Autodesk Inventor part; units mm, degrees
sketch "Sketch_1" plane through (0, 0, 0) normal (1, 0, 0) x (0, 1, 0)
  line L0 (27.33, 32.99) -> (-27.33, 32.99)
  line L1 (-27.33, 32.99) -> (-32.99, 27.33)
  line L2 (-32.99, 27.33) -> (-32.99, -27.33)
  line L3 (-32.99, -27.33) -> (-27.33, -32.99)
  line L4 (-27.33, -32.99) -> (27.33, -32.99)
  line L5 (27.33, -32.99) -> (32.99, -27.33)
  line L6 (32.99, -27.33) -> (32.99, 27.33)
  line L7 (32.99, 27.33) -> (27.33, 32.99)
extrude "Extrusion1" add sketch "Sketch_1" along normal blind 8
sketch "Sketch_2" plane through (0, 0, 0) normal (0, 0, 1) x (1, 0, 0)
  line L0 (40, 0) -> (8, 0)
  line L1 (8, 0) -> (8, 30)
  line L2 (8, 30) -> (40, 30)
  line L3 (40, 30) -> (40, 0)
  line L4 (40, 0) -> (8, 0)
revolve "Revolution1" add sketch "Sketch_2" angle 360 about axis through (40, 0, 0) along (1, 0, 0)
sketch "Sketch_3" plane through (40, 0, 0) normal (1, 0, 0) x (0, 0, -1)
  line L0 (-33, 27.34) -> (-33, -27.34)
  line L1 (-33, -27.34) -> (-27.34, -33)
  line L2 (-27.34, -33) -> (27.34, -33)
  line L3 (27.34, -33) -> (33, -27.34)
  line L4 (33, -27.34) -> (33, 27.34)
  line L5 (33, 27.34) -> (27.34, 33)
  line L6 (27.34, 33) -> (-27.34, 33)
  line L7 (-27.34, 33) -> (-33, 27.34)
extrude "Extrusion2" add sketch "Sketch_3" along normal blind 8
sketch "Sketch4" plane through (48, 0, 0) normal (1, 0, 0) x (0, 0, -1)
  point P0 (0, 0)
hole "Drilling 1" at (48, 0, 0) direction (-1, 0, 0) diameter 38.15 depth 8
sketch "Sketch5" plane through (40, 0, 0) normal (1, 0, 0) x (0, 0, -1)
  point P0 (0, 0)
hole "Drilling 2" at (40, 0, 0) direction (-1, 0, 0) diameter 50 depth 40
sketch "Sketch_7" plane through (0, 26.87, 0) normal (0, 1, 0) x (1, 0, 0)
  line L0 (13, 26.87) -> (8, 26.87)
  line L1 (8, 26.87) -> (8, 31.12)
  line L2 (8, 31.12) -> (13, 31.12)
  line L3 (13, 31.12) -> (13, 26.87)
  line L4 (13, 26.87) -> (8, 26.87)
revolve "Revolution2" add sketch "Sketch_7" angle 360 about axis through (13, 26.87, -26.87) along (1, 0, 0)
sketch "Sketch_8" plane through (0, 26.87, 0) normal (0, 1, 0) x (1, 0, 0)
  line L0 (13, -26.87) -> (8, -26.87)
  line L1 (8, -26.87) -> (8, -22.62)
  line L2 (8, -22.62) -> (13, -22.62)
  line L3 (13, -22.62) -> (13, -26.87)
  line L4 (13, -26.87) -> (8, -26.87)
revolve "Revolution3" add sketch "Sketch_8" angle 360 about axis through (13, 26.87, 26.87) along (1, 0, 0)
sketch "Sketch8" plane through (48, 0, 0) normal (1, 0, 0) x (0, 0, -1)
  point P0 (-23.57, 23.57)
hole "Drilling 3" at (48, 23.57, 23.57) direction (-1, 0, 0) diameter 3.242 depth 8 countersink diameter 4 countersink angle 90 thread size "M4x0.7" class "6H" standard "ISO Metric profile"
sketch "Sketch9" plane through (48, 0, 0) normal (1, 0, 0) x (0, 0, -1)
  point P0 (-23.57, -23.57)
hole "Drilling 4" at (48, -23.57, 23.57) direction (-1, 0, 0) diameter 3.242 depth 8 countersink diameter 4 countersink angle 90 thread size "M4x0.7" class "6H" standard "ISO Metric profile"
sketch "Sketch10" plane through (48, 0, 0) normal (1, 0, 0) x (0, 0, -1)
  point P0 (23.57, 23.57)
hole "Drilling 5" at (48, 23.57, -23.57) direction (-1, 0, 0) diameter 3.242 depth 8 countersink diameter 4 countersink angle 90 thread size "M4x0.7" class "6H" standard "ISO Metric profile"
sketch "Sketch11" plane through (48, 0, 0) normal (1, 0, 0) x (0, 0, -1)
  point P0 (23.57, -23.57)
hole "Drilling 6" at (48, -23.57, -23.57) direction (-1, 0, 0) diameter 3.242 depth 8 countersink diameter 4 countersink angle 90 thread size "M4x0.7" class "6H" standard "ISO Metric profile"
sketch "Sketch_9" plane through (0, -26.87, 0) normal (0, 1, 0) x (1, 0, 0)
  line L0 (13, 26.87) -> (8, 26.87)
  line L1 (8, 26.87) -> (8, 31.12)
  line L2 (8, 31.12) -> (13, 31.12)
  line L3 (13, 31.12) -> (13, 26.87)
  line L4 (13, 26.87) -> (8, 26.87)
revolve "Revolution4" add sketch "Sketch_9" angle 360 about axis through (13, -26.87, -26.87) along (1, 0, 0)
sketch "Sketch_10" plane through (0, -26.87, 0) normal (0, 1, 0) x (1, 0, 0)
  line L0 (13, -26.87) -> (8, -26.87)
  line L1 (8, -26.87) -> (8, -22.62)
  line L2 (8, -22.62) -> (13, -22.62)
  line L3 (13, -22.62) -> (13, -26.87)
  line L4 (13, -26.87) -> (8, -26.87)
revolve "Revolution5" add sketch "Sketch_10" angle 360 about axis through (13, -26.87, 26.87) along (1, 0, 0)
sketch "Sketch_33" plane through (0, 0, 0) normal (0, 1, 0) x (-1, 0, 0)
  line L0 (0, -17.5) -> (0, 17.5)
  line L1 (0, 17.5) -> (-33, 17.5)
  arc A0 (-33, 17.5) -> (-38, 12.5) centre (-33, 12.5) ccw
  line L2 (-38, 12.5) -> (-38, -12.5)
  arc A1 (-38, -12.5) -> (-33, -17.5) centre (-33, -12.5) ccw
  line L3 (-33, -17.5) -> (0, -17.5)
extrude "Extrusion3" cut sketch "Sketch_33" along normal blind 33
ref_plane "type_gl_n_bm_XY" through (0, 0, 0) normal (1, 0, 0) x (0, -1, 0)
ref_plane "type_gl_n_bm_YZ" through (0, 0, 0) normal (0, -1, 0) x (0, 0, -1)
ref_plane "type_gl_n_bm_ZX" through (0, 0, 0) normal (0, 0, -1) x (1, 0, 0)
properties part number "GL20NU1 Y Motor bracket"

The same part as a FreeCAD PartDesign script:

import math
import FreeCAD as App
import Part
import Sketcher

V = App.Vector

doc = App.newDocument("Part")
body = doc.addObject("PartDesign::Body", "Body")

# Sketch on YZ plane
sketch1 = body.newObject("Sketcher::SketchObject", "Sketch")
sketch1.AttachmentSupport = (doc.getObject("YZ_Plane"), [""])
sketch1.MapMode = "FlatFace"
sketch1.addGeometry(Part.LineSegment(V(33, 27, 0), V(27, 33, 0)), False)
sketch1.addGeometry(Part.LineSegment(V(27, 33, 0), V(-27, 33, 0)), False)
sketch1.addGeometry(Part.LineSegment(V(-27, 33, 0), V(-33, 27, 0)), False)
sketch1.addGeometry(Part.LineSegment(V(-33, 27, 0), V(-33, -27, 0)), False)
sketch1.addGeometry(Part.LineSegment(V(-33, -27, 0), V(-27, -33, 0)), False)
sketch1.addGeometry(Part.LineSegment(V(-27, -33, 0), V(27, -33, 0)), False)
sketch1.addGeometry(Part.LineSegment(V(27, -33, 0), V(33, -27, 0)), False)
sketch1.addGeometry(Part.LineSegment(V(33, -27, 0), V(33, 27, 0)), False)
sketch1.addConstraint(Sketcher.Constraint("Coincident", 0, 2, 1, 1))
sketch1.addConstraint(Sketcher.Constraint("Coincident", 1, 2, 2, 1))
sketch1.addConstraint(Sketcher.Constraint("Coincident", 2, 2, 3, 1))
sketch1.addConstraint(Sketcher.Constraint("Coincident", 3, 2, 4, 1))
sketch1.addConstraint(Sketcher.Constraint("Coincident", 4, 2, 5, 1))
sketch1.addConstraint(Sketcher.Constraint("Coincident", 5, 2, 6, 1))
sketch1.addConstraint(Sketcher.Constraint("Coincident", 6, 2, 7, 1))
sketch1.addConstraint(Sketcher.Constraint("Coincident", 7, 2, 0, 1))
sketch1.addConstraint(Sketcher.Constraint("Horizontal", 1))
sketch1.addConstraint(Sketcher.Constraint("Vertical", 3))
sketch1.addConstraint(Sketcher.Constraint("Horizontal", 5))
sketch1.addConstraint(Sketcher.Constraint("Vertical", 7))
sketch1.addConstraint(Sketcher.Constraint("Symmetric", 0, 2, 4, 2, -1, 1))
sketch1.addConstraint(Sketcher.Constraint("Symmetric", 2, 2, 6, 2, -1, 1))
sketch1.addConstraint(Sketcher.Constraint("Perpendicular", 0, 2))
sketch1.addConstraint(Sketcher.Constraint("Perpendicular", 2, 4))
sketch1.addConstraint(Sketcher.Constraint("Perpendicular", 4, 6))
sketch1.addConstraint(Sketcher.Constraint("Horizontal", 3, 2, 6, 2))
sketch1.addConstraint(Sketcher.Constraint("Vertical", 1, 2, 4, 2))
sketch1.addConstraint(Sketcher.Constraint("Equal", 5, 3))
sketch1.addConstraint(Sketcher.Constraint("DistanceX", 1, 2, 1, 1, 54.66))
sketch1.addConstraint(Sketcher.Constraint("DistanceY", -1, 1, 0, 2, 32.99))
pad1 = body.newObject("PartDesign::Pad", "Pad")
pad1.Profile = sketch1
pad1.Length = 8

# Sketch on XY plane
sketch2 = body.newObject("Sketcher::SketchObject", "Sketch001")
sketch2.AttachmentSupport = (doc.getObject("XY_Plane"), [""])
sketch2.MapMode = "FlatFace"
sketch2.addGeometry(Part.LineSegment(V(8, 0, 0), V(40, 0, 0)), False)
sketch2.addGeometry(Part.LineSegment(V(40, 0, 0), V(40, 30, 0)), False)
sketch2.addGeometry(Part.LineSegment(V(40, 30, 0), V(8, 30, 0)), False)
sketch2.addGeometry(Part.LineSegment(V(8, 30, 0), V(8, 0, 0)), False)
sketch2.addConstraint(Sketcher.Constraint("Coincident", 0, 2, 1, 1))
sketch2.addConstraint(Sketcher.Constraint("Coincident", 1, 2, 2, 1))
sketch2.addConstraint(Sketcher.Constraint("Coincident", 2, 2, 3, 1))
sketch2.addConstraint(Sketcher.Constraint("Coincident", 3, 2, 0, 1))
sketch2.addConstraint(Sketcher.Constraint("Horizontal", 0))
sketch2.addConstraint(Sketcher.Constraint("Vertical", 1))
sketch2.addConstraint(Sketcher.Constraint("Horizontal", 2))
sketch2.addConstraint(Sketcher.Constraint("Vertical", 3))
sketch2.addConstraint(Sketcher.Constraint("PointOnObject", 0, 2, -1))
sketch2.addConstraint(Sketcher.Constraint("DistanceX", 0, 1, 0, 2, 32.0))
sketch2.addConstraint(Sketcher.Constraint("DistanceY", 1, 1, 1, 2, 30.0))
sketch2.addConstraint(Sketcher.Constraint("DistanceX", -1, 1, 0, 2, 40.0))
revolution = body.newObject("PartDesign::Revolution", "Revolution")
revolution.Profile = sketch2
revolution.ReferenceAxis = (sketch2, ["H_Axis"])
revolution.Angle = 360

# Sketch on YZ plane
sketch3 = body.newObject("Sketcher::SketchObject", "Sketch002")
sketch3.AttachmentSupport = (doc.getObject("YZ_Plane"), [""])
sketch3.MapMode = "FlatFace"
sketch3.AttachmentOffset = App.Placement(V(0, 0, 40), App.Rotation())
sketch3.addGeometry(Part.LineSegment(V(33, 27, 0), V(27, 33, 0)), False)
sketch3.addGeometry(Part.LineSegment(V(27, 33, 0), V(-27, 33, 0)), False)
sketch3.addGeometry(Part.LineSegment(V(-27, 33, 0), V(-33, 27, 0)), False)
sketch3.addGeometry(Part.LineSegment(V(-33, 27, 0), V(-33, -27, 0)), False)
sketch3.addGeometry(Part.LineSegment(V(-33, -27, 0), V(-27, -33, 0)), False)
sketch3.addGeometry(Part.LineSegment(V(-27, -33, 0), V(27, -33, 0)), False)
sketch3.addGeometry(Part.LineSegment(V(27, -33, 0), V(33, -27, 0)), False)
sketch3.addGeometry(Part.LineSegment(V(33, -27, 0), V(33, 27, 0)), False)
sketch3.addConstraint(Sketcher.Constraint("Coincident", 0, 2, 1, 1))
sketch3.addConstraint(Sketcher.Constraint("Coincident", 1, 2, 2, 1))
sketch3.addConstraint(Sketcher.Constraint("Coincident", 2, 2, 3, 1))
sketch3.addConstraint(Sketcher.Constraint("Coincident", 3, 2, 4, 1))
sketch3.addConstraint(Sketcher.Constraint("Coincident", 4, 2, 5, 1))
sketch3.addConstraint(Sketcher.Constraint("Coincident", 5, 2, 6, 1))
sketch3.addConstraint(Sketcher.Constraint("Coincident", 6, 2, 7, 1))
sketch3.addConstraint(Sketcher.Constraint("Coincident", 7, 2, 0, 1))
sketch3.addConstraint(Sketcher.Constraint("Horizontal", 1))
sketch3.addConstraint(Sketcher.Constraint("Vertical", 3))
sketch3.addConstraint(Sketcher.Constraint("Horizontal", 5))
sketch3.addConstraint(Sketcher.Constraint("Vertical", 7))
sketch3.addConstraint(Sketcher.Constraint("Symmetric", 0, 2, 4, 2, -1, 1))
sketch3.addConstraint(Sketcher.Constraint("Symmetric", 2, 2, 6, 2, -1, 1))
sketch3.addConstraint(Sketcher.Constraint("Perpendicular", 0, 2))
sketch3.addConstraint(Sketcher.Constraint("Perpendicular", 2, 4))
sketch3.addConstraint(Sketcher.Constraint("Perpendicular", 4, 6))
sketch3.addConstraint(Sketcher.Constraint("Horizontal", 3, 2, 6, 2))
sketch3.addConstraint(Sketcher.Constraint("Vertical", 1, 2, 4, 2))
sketch3.addConstraint(Sketcher.Constraint("Equal", 5, 3))
sketch3.addConstraint(Sketcher.Constraint("DistanceY", -1, 1, 0, 2, 33.0))
sketch3.addConstraint(Sketcher.Constraint("DistanceX", 1, 2, 1, 1, 54.68))
pad2 = body.newObject("PartDesign::Pad", "Pad001")
pad2.Profile = sketch3
pad2.Length = 8

# Sketch on YZ plane
sketch4 = body.newObject("Sketcher::SketchObject", "Sketch003")
sketch4.AttachmentSupport = (doc.getObject("YZ_Plane"), [""])
sketch4.MapMode = "FlatFace"
sketch4.AttachmentOffset = App.Placement(V(0, 0, 48), App.Rotation())
sketch4.addGeometry(Part.Circle(V(0, 0, 0), V(0, 0, 1), 19), False)
sketch4.addConstraint(Sketcher.Constraint("Coincident", 0, 3, -1, 1))
sketch4.addConstraint(Sketcher.Constraint("Diameter", 0, 38.15))
doc.recompute()
hole = body.newObject("PartDesign::Hole", "Hole")
hole.Profile = sketch4
hole.ThreadType = "None"
hole.Diameter = 38.15
hole.DepthType = "Dimension"
hole.Depth = 8
hole.DrillPoint = "Flat"

# Sketch on YZ plane
sketch5 = body.newObject("Sketcher::SketchObject", "Sketch004")
sketch5.AttachmentSupport = (doc.getObject("YZ_Plane"), [""])
sketch5.MapMode = "FlatFace"
sketch5.AttachmentOffset = App.Placement(V(0, 0, 40), App.Rotation())
sketch5.addGeometry(Part.Circle(V(0, 0, 0), V(0, 0, 1), 25), False)
sketch5.addConstraint(Sketcher.Constraint("Coincident", 0, 3, -1, 1))
sketch5.addConstraint(Sketcher.Constraint("Diameter", 0, 50.0))
doc.recompute()
hole2 = body.newObject("PartDesign::Hole", "Hole001")
hole2.Profile = sketch5
hole2.ThreadType = "None"
hole2.Diameter = 50
hole2.DepthType = "Dimension"
hole2.Depth = 40
hole2.DrillPoint = "Flat"

# Sketch on XZ plane
sketch6 = body.newObject("Sketcher::SketchObject", "Sketch005")
sketch6.AttachmentSupport = (doc.getObject("XZ_Plane"), [""])
sketch6.MapMode = "FlatFace"
sketch6.AttachmentOffset = App.Placement(V(0, 0, -26.87), App.Rotation())
sketch6.addGeometry(Part.LineSegment(V(8, -26.9, 0), V(13, -26.9, 0)), False)
sketch6.addGeometry(Part.LineSegment(V(13, -26.9, 0), V(13, -31.1, 0)), False)
sketch6.addGeometry(Part.LineSegment(V(13, -31.1, 0), V(8, -31.1, 0)), False)
sketch6.addGeometry(Part.LineSegment(V(8, -31.1, 0), V(8, -26.9, 0)), False)
sketch6.addGeometry(Part.LineSegment(V(8, -26.9, 0), V(13, -26.9, 0)), True)  # axis
sketch6.addConstraint(Sketcher.Constraint("Coincident", 0, 2, 1, 1))
sketch6.addConstraint(Sketcher.Constraint("Coincident", 1, 2, 2, 1))
sketch6.addConstraint(Sketcher.Constraint("Coincident", 2, 2, 3, 1))
sketch6.addConstraint(Sketcher.Constraint("Coincident", 3, 2, 0, 1))
sketch6.addConstraint(Sketcher.Constraint("Horizontal", 0))
sketch6.addConstraint(Sketcher.Constraint("Vertical", 1))
sketch6.addConstraint(Sketcher.Constraint("Horizontal", 2))
sketch6.addConstraint(Sketcher.Constraint("Vertical", 3))
sketch6.addConstraint(Sketcher.Constraint("Horizontal", 4))
sketch6.addConstraint(Sketcher.Constraint("Coincident", 4, 1, 3, 2))
sketch6.addConstraint(Sketcher.Constraint("Vertical", 1, 2, 4, 2))
sketch6.addConstraint(Sketcher.Constraint("DistanceX", 0, 1, 0, 2, 5.0))
sketch6.addConstraint(Sketcher.Constraint("DistanceX", -1, 1, 0, 2, 13.0))
sketch6.addConstraint(Sketcher.Constraint("DistanceY", 1, 2, 1, 1, 4.25))
sketch6.addConstraint(Sketcher.Constraint("DistanceY", 0, 2, -1, 1, 26.87))
revolution2 = body.newObject("PartDesign::Revolution", "Revolution001")
revolution2.Profile = sketch6
revolution2.ReferenceAxis = (sketch6, ["Axis0"])
revolution2.Angle = 360

# Sketch on XZ plane
sketch7 = body.newObject("Sketcher::SketchObject", "Sketch006")
sketch7.AttachmentSupport = (doc.getObject("XZ_Plane"), [""])
sketch7.MapMode = "FlatFace"
sketch7.AttachmentOffset = App.Placement(V(0, 0, -26.87), App.Rotation())
sketch7.addGeometry(Part.LineSegment(V(8, 26.9, 0), V(13, 26.9, 0)), False)
sketch7.addGeometry(Part.LineSegment(V(13, 26.9, 0), V(13, 22.6, 0)), False)
sketch7.addGeometry(Part.LineSegment(V(13, 22.6, 0), V(8, 22.6, 0)), False)
sketch7.addGeometry(Part.LineSegment(V(8, 22.6, 0), V(8, 26.9, 0)), False)
sketch7.addGeometry(Part.LineSegment(V(8, 26.9, 0), V(13, 26.9, 0)), True)  # axis
sketch7.addConstraint(Sketcher.Constraint("Coincident", 0, 2, 1, 1))
sketch7.addConstraint(Sketcher.Constraint("Coincident", 1, 2, 2, 1))
sketch7.addConstraint(Sketcher.Constraint("Coincident", 2, 2, 3, 1))
sketch7.addConstraint(Sketcher.Constraint("Coincident", 3, 2, 0, 1))
sketch7.addConstraint(Sketcher.Constraint("Horizontal", 0))
sketch7.addConstraint(Sketcher.Constraint("Vertical", 1))
sketch7.addConstraint(Sketcher.Constraint("Horizontal", 2))
sketch7.addConstraint(Sketcher.Constraint("Vertical", 3))
sketch7.addConstraint(Sketcher.Constraint("Horizontal", 4))
sketch7.addConstraint(Sketcher.Constraint("Coincident", 4, 1, 3, 2))
sketch7.addConstraint(Sketcher.Constraint("Vertical", 1, 2, 4, 2))
sketch7.addConstraint(Sketcher.Constraint("DistanceX", 0, 1, 0, 2, 5.0))
sketch7.addConstraint(Sketcher.Constraint("DistanceX", -1, 1, 0, 2, 13.0))
sketch7.addConstraint(Sketcher.Constraint("DistanceY", 1, 2, 1, 1, 4.25))
sketch7.addConstraint(Sketcher.Constraint("DistanceY", -1, 1, 0, 2, 26.87))
revolution3 = body.newObject("PartDesign::Revolution", "Revolution002")
revolution3.Profile = sketch7
revolution3.ReferenceAxis = (sketch7, ["Axis0"])
revolution3.Angle = 360

# Sketch on YZ plane
sketch8 = body.newObject("Sketcher::SketchObject", "Sketch007")
sketch8.AttachmentSupport = (doc.getObject("YZ_Plane"), [""])
sketch8.MapMode = "FlatFace"
sketch8.AttachmentOffset = App.Placement(V(0, 0, 48), App.Rotation())
sketch8.addGeometry(Part.Circle(V(23.6, 23.6, 0), V(0, 0, 1), 1.6), False)
sketch8.addConstraint(Sketcher.Constraint("Diameter", 0, 3.242))
sketch8.addConstraint(Sketcher.Constraint("DistanceX", -1, 1, 0, 3, 23.57))
sketch8.addConstraint(Sketcher.Constraint("DistanceY", -1, 1, 0, 3, 23.57))
doc.recompute()
hole3 = body.newObject("PartDesign::Hole", "Hole002")
hole3.Profile = sketch8
hole3.ThreadType = "None"
hole3.Diameter = 3.242
hole3.DepthType = "Dimension"
hole3.Depth = 8
hole3.DrillPoint = "Flat"
hole3.HoleCutType = "Countersink"
hole3.HoleCutDiameter = 4
hole3.HoleCutCountersinkAngle = 90

# Sketch on YZ plane
sketch9 = body.newObject("Sketcher::SketchObject", "Sketch008")
sketch9.AttachmentSupport = (doc.getObject("YZ_Plane"), [""])
sketch9.MapMode = "FlatFace"
sketch9.AttachmentOffset = App.Placement(V(0, 0, 48), App.Rotation())
sketch9.addGeometry(Part.Circle(V(-23.6, 23.6, 0), V(0, 0, 1), 1.6), False)
sketch9.addConstraint(Sketcher.Constraint("Diameter", 0, 3.242))
sketch9.addConstraint(Sketcher.Constraint("DistanceX", 0, 3, -1, 1, 23.57))
sketch9.addConstraint(Sketcher.Constraint("DistanceY", -1, 1, 0, 3, 23.57))
doc.recompute()
hole4 = body.newObject("PartDesign::Hole", "Hole003")
hole4.Profile = sketch9
hole4.ThreadType = "None"
hole4.Diameter = 3.242
hole4.DepthType = "Dimension"
hole4.Depth = 8
hole4.DrillPoint = "Flat"
hole4.HoleCutType = "Countersink"
hole4.HoleCutDiameter = 4
hole4.HoleCutCountersinkAngle = 90

# Sketch on YZ plane
sketch10 = body.newObject("Sketcher::SketchObject", "Sketch009")
sketch10.AttachmentSupport = (doc.getObject("YZ_Plane"), [""])
sketch10.MapMode = "FlatFace"
sketch10.AttachmentOffset = App.Placement(V(0, 0, 48), App.Rotation())
sketch10.addGeometry(Part.Circle(V(23.6, -23.6, 0), V(0, 0, 1), 1.6), False)
sketch10.addConstraint(Sketcher.Constraint("Diameter", 0, 3.242))
sketch10.addConstraint(Sketcher.Constraint("DistanceX", -1, 1, 0, 3, 23.57))
sketch10.addConstraint(Sketcher.Constraint("DistanceY", 0, 3, -1, 1, 23.57))
doc.recompute()
hole5 = body.newObject("PartDesign::Hole", "Hole004")
hole5.Profile = sketch10
hole5.ThreadType = "None"
hole5.Diameter = 3.242
hole5.DepthType = "Dimension"
hole5.Depth = 8
hole5.DrillPoint = "Flat"
hole5.HoleCutType = "Countersink"
hole5.HoleCutDiameter = 4
hole5.HoleCutCountersinkAngle = 90

# Sketch on YZ plane
sketch11 = body.newObject("Sketcher::SketchObject", "Sketch010")
sketch11.AttachmentSupport = (doc.getObject("YZ_Plane"), [""])
sketch11.MapMode = "FlatFace"
sketch11.AttachmentOffset = App.Placement(V(0, 0, 48), App.Rotation())
sketch11.addGeometry(Part.Circle(V(-23.6, -23.6, 0), V(0, 0, 1), 1.6), False)
sketch11.addConstraint(Sketcher.Constraint("Diameter", 0, 3.242))
sketch11.addConstraint(Sketcher.Constraint("DistanceX", 0, 3, -1, 1, 23.57))
sketch11.addConstraint(Sketcher.Constraint("DistanceY", 0, 3, -1, 1, 23.57))
doc.recompute()
hole6 = body.newObject("PartDesign::Hole", "Hole005")
hole6.Profile = sketch11
hole6.ThreadType = "None"
hole6.Diameter = 3.242
hole6.DepthType = "Dimension"
hole6.Depth = 8
hole6.DrillPoint = "Flat"
hole6.HoleCutType = "Countersink"
hole6.HoleCutDiameter = 4
hole6.HoleCutCountersinkAngle = 90

# Sketch on XZ plane
sketch12 = body.newObject("Sketcher::SketchObject", "Sketch011")
sketch12.AttachmentSupport = (doc.getObject("XZ_Plane"), [""])
sketch12.MapMode = "FlatFace"
sketch12.AttachmentOffset = App.Placement(V(0, 0, 26.87), App.Rotation())
sketch12.addGeometry(Part.LineSegment(V(8, -26.9, 0), V(13, -26.9, 0)), False)
sketch12.addGeometry(Part.LineSegment(V(13, -26.9, 0), V(13, -31.1, 0)), False)
sketch12.addGeometry(Part.LineSegment(V(13, -31.1, 0), V(8, -31.1, 0)), False)
sketch12.addGeometry(Part.LineSegment(V(8, -31.1, 0), V(8, -26.9, 0)), False)
sketch12.addGeometry(Part.LineSegment(V(8, -26.9, 0), V(13, -26.9, 0)), True)  # axis
sketch12.addConstraint(Sketcher.Constraint("Coincident", 0, 2, 1, 1))
sketch12.addConstraint(Sketcher.Constraint("Coincident", 1, 2, 2, 1))
sketch12.addConstraint(Sketcher.Constraint("Coincident", 2, 2, 3, 1))
sketch12.addConstraint(Sketcher.Constraint("Coincident", 3, 2, 0, 1))
sketch12.addConstraint(Sketcher.Constraint("Horizontal", 0))
sketch12.addConstraint(Sketcher.Constraint("Vertical", 1))
sketch12.addConstraint(Sketcher.Constraint("Horizontal", 2))
sketch12.addConstraint(Sketcher.Constraint("Vertical", 3))
sketch12.addConstraint(Sketcher.Constraint("Horizontal", 4))
sketch12.addConstraint(Sketcher.Constraint("Coincident", 4, 1, 3, 2))
sketch12.addConstraint(Sketcher.Constraint("Vertical", 1, 2, 4, 2))
sketch12.addConstraint(Sketcher.Constraint("DistanceX", 0, 1, 0, 2, 5.0))
sketch12.addConstraint(Sketcher.Constraint("DistanceX", -1, 1, 0, 2, 13.0))
sketch12.addConstraint(Sketcher.Constraint("DistanceY", 1, 2, 1, 1, 4.25))
sketch12.addConstraint(Sketcher.Constraint("DistanceY", 0, 2, -1, 1, 26.87))
revolution4 = body.newObject("PartDesign::Revolution", "Revolution003")
revolution4.Profile = sketch12
revolution4.ReferenceAxis = (sketch12, ["Axis0"])
revolution4.Angle = 360

# Sketch on XZ plane
sketch13 = body.newObject("Sketcher::SketchObject", "Sketch012")
sketch13.AttachmentSupport = (doc.getObject("XZ_Plane"), [""])
sketch13.MapMode = "FlatFace"
sketch13.AttachmentOffset = App.Placement(V(0, 0, 26.87), App.Rotation())
sketch13.addGeometry(Part.LineSegment(V(8, 26.9, 0), V(13, 26.9, 0)), False)
sketch13.addGeometry(Part.LineSegment(V(13, 26.9, 0), V(13, 22.6, 0)), False)
sketch13.addGeometry(Part.LineSegment(V(13, 22.6, 0), V(8, 22.6, 0)), False)
sketch13.addGeometry(Part.LineSegment(V(8, 22.6, 0), V(8, 26.9, 0)), False)
sketch13.addGeometry(Part.LineSegment(V(8, 26.9, 0), V(13, 26.9, 0)), True)  # axis
sketch13.addConstraint(Sketcher.Constraint("Coincident", 0, 2, 1, 1))
sketch13.addConstraint(Sketcher.Constraint("Coincident", 1, 2, 2, 1))
sketch13.addConstraint(Sketcher.Constraint("Coincident", 2, 2, 3, 1))
sketch13.addConstraint(Sketcher.Constraint("Coincident", 3, 2, 0, 1))
sketch13.addConstraint(Sketcher.Constraint("Horizontal", 0))
sketch13.addConstraint(Sketcher.Constraint("Vertical", 1))
sketch13.addConstraint(Sketcher.Constraint("Horizontal", 2))
sketch13.addConstraint(Sketcher.Constraint("Vertical", 3))
sketch13.addConstraint(Sketcher.Constraint("Horizontal", 4))
sketch13.addConstraint(Sketcher.Constraint("Coincident", 4, 1, 3, 2))
sketch13.addConstraint(Sketcher.Constraint("Vertical", 1, 2, 4, 2))
sketch13.addConstraint(Sketcher.Constraint("DistanceX", 0, 1, 0, 2, 5.0))
sketch13.addConstraint(Sketcher.Constraint("DistanceX", -1, 1, 0, 2, 13.0))
sketch13.addConstraint(Sketcher.Constraint("DistanceY", 1, 2, 1, 1, 4.25))
sketch13.addConstraint(Sketcher.Constraint("DistanceY", -1, 1, 0, 2, 26.87))
revolution5 = body.newObject("PartDesign::Revolution", "Revolution004")
revolution5.Profile = sketch13
revolution5.ReferenceAxis = (sketch13, ["Axis0"])
revolution5.Angle = 360

# Sketch on XZ plane
sketch14 = body.newObject("Sketcher::SketchObject", "Sketch013")
sketch14.AttachmentSupport = (doc.getObject("XZ_Plane"), [""])
sketch14.MapMode = "FlatFace"
sketch14.addGeometry(Part.LineSegment(V(33, -18, 0), V(0, -18, 0)), False)
sketch14.addGeometry(Part.LineSegment(V(0, -18, 0), V(0, 18, 0)), False)
sketch14.addGeometry(Part.LineSegment(V(0, 18, 0), V(33, 18, 0)), False)
sketch14.addGeometry(Part.ArcOfCircle(Part.Circle(V(33, 12, 0), V(0, 0, 1), 5), math.radians(0), math.radians(90)), False)
sketch14.addGeometry(Part.LineSegment(V(38, 12, 0), V(38, -12, 0)), False)
sketch14.addGeometry(Part.ArcOfCircle(Part.Circle(V(33, -12, 0), V(0, 0, 1), 5), math.radians(-90), math.radians(0)), False)
sketch14.addConstraint(Sketcher.Constraint("Coincident", 0, 2, 1, 1))
sketch14.addConstraint(Sketcher.Constraint("Coincident", 1, 2, 2, 1))
sketch14.addConstraint(Sketcher.Constraint("Tangent", 2, 2, 3, 2))
sketch14.addConstraint(Sketcher.Constraint("Tangent", 3, 1, 4, 1))
sketch14.addConstraint(Sketcher.Constraint("Tangent", 4, 2, 5, 2))
sketch14.addConstraint(Sketcher.Constraint("Tangent", 5, 1, 0, 1))
sketch14.addConstraint(Sketcher.Constraint("Horizontal", 0))
sketch14.addConstraint(Sketcher.Constraint("Vertical", 1))
sketch14.addConstraint(Sketcher.Constraint("Horizontal", 2))
sketch14.addConstraint(Sketcher.Constraint("Vertical", 4))
sketch14.addConstraint(Sketcher.Constraint("Equal", 3, 5))
sketch14.addConstraint(Sketcher.Constraint("Symmetric", 0, 2, 1, 2, -1, 1))
sketch14.addConstraint(Sketcher.Constraint("Radius", 3, 5.0))
sketch14.addConstraint(Sketcher.Constraint("DistanceX", 0, 2, 0, 1, 33.0))
sketch14.addConstraint(Sketcher.Constraint("DistanceY", 1, 1, 1, 2, 35.0))
pocket1 = body.newObject("PartDesign::Pocket", "Pocket")
pocket1.Profile = sketch14
pocket1.Length = 33

doc.recompute()
